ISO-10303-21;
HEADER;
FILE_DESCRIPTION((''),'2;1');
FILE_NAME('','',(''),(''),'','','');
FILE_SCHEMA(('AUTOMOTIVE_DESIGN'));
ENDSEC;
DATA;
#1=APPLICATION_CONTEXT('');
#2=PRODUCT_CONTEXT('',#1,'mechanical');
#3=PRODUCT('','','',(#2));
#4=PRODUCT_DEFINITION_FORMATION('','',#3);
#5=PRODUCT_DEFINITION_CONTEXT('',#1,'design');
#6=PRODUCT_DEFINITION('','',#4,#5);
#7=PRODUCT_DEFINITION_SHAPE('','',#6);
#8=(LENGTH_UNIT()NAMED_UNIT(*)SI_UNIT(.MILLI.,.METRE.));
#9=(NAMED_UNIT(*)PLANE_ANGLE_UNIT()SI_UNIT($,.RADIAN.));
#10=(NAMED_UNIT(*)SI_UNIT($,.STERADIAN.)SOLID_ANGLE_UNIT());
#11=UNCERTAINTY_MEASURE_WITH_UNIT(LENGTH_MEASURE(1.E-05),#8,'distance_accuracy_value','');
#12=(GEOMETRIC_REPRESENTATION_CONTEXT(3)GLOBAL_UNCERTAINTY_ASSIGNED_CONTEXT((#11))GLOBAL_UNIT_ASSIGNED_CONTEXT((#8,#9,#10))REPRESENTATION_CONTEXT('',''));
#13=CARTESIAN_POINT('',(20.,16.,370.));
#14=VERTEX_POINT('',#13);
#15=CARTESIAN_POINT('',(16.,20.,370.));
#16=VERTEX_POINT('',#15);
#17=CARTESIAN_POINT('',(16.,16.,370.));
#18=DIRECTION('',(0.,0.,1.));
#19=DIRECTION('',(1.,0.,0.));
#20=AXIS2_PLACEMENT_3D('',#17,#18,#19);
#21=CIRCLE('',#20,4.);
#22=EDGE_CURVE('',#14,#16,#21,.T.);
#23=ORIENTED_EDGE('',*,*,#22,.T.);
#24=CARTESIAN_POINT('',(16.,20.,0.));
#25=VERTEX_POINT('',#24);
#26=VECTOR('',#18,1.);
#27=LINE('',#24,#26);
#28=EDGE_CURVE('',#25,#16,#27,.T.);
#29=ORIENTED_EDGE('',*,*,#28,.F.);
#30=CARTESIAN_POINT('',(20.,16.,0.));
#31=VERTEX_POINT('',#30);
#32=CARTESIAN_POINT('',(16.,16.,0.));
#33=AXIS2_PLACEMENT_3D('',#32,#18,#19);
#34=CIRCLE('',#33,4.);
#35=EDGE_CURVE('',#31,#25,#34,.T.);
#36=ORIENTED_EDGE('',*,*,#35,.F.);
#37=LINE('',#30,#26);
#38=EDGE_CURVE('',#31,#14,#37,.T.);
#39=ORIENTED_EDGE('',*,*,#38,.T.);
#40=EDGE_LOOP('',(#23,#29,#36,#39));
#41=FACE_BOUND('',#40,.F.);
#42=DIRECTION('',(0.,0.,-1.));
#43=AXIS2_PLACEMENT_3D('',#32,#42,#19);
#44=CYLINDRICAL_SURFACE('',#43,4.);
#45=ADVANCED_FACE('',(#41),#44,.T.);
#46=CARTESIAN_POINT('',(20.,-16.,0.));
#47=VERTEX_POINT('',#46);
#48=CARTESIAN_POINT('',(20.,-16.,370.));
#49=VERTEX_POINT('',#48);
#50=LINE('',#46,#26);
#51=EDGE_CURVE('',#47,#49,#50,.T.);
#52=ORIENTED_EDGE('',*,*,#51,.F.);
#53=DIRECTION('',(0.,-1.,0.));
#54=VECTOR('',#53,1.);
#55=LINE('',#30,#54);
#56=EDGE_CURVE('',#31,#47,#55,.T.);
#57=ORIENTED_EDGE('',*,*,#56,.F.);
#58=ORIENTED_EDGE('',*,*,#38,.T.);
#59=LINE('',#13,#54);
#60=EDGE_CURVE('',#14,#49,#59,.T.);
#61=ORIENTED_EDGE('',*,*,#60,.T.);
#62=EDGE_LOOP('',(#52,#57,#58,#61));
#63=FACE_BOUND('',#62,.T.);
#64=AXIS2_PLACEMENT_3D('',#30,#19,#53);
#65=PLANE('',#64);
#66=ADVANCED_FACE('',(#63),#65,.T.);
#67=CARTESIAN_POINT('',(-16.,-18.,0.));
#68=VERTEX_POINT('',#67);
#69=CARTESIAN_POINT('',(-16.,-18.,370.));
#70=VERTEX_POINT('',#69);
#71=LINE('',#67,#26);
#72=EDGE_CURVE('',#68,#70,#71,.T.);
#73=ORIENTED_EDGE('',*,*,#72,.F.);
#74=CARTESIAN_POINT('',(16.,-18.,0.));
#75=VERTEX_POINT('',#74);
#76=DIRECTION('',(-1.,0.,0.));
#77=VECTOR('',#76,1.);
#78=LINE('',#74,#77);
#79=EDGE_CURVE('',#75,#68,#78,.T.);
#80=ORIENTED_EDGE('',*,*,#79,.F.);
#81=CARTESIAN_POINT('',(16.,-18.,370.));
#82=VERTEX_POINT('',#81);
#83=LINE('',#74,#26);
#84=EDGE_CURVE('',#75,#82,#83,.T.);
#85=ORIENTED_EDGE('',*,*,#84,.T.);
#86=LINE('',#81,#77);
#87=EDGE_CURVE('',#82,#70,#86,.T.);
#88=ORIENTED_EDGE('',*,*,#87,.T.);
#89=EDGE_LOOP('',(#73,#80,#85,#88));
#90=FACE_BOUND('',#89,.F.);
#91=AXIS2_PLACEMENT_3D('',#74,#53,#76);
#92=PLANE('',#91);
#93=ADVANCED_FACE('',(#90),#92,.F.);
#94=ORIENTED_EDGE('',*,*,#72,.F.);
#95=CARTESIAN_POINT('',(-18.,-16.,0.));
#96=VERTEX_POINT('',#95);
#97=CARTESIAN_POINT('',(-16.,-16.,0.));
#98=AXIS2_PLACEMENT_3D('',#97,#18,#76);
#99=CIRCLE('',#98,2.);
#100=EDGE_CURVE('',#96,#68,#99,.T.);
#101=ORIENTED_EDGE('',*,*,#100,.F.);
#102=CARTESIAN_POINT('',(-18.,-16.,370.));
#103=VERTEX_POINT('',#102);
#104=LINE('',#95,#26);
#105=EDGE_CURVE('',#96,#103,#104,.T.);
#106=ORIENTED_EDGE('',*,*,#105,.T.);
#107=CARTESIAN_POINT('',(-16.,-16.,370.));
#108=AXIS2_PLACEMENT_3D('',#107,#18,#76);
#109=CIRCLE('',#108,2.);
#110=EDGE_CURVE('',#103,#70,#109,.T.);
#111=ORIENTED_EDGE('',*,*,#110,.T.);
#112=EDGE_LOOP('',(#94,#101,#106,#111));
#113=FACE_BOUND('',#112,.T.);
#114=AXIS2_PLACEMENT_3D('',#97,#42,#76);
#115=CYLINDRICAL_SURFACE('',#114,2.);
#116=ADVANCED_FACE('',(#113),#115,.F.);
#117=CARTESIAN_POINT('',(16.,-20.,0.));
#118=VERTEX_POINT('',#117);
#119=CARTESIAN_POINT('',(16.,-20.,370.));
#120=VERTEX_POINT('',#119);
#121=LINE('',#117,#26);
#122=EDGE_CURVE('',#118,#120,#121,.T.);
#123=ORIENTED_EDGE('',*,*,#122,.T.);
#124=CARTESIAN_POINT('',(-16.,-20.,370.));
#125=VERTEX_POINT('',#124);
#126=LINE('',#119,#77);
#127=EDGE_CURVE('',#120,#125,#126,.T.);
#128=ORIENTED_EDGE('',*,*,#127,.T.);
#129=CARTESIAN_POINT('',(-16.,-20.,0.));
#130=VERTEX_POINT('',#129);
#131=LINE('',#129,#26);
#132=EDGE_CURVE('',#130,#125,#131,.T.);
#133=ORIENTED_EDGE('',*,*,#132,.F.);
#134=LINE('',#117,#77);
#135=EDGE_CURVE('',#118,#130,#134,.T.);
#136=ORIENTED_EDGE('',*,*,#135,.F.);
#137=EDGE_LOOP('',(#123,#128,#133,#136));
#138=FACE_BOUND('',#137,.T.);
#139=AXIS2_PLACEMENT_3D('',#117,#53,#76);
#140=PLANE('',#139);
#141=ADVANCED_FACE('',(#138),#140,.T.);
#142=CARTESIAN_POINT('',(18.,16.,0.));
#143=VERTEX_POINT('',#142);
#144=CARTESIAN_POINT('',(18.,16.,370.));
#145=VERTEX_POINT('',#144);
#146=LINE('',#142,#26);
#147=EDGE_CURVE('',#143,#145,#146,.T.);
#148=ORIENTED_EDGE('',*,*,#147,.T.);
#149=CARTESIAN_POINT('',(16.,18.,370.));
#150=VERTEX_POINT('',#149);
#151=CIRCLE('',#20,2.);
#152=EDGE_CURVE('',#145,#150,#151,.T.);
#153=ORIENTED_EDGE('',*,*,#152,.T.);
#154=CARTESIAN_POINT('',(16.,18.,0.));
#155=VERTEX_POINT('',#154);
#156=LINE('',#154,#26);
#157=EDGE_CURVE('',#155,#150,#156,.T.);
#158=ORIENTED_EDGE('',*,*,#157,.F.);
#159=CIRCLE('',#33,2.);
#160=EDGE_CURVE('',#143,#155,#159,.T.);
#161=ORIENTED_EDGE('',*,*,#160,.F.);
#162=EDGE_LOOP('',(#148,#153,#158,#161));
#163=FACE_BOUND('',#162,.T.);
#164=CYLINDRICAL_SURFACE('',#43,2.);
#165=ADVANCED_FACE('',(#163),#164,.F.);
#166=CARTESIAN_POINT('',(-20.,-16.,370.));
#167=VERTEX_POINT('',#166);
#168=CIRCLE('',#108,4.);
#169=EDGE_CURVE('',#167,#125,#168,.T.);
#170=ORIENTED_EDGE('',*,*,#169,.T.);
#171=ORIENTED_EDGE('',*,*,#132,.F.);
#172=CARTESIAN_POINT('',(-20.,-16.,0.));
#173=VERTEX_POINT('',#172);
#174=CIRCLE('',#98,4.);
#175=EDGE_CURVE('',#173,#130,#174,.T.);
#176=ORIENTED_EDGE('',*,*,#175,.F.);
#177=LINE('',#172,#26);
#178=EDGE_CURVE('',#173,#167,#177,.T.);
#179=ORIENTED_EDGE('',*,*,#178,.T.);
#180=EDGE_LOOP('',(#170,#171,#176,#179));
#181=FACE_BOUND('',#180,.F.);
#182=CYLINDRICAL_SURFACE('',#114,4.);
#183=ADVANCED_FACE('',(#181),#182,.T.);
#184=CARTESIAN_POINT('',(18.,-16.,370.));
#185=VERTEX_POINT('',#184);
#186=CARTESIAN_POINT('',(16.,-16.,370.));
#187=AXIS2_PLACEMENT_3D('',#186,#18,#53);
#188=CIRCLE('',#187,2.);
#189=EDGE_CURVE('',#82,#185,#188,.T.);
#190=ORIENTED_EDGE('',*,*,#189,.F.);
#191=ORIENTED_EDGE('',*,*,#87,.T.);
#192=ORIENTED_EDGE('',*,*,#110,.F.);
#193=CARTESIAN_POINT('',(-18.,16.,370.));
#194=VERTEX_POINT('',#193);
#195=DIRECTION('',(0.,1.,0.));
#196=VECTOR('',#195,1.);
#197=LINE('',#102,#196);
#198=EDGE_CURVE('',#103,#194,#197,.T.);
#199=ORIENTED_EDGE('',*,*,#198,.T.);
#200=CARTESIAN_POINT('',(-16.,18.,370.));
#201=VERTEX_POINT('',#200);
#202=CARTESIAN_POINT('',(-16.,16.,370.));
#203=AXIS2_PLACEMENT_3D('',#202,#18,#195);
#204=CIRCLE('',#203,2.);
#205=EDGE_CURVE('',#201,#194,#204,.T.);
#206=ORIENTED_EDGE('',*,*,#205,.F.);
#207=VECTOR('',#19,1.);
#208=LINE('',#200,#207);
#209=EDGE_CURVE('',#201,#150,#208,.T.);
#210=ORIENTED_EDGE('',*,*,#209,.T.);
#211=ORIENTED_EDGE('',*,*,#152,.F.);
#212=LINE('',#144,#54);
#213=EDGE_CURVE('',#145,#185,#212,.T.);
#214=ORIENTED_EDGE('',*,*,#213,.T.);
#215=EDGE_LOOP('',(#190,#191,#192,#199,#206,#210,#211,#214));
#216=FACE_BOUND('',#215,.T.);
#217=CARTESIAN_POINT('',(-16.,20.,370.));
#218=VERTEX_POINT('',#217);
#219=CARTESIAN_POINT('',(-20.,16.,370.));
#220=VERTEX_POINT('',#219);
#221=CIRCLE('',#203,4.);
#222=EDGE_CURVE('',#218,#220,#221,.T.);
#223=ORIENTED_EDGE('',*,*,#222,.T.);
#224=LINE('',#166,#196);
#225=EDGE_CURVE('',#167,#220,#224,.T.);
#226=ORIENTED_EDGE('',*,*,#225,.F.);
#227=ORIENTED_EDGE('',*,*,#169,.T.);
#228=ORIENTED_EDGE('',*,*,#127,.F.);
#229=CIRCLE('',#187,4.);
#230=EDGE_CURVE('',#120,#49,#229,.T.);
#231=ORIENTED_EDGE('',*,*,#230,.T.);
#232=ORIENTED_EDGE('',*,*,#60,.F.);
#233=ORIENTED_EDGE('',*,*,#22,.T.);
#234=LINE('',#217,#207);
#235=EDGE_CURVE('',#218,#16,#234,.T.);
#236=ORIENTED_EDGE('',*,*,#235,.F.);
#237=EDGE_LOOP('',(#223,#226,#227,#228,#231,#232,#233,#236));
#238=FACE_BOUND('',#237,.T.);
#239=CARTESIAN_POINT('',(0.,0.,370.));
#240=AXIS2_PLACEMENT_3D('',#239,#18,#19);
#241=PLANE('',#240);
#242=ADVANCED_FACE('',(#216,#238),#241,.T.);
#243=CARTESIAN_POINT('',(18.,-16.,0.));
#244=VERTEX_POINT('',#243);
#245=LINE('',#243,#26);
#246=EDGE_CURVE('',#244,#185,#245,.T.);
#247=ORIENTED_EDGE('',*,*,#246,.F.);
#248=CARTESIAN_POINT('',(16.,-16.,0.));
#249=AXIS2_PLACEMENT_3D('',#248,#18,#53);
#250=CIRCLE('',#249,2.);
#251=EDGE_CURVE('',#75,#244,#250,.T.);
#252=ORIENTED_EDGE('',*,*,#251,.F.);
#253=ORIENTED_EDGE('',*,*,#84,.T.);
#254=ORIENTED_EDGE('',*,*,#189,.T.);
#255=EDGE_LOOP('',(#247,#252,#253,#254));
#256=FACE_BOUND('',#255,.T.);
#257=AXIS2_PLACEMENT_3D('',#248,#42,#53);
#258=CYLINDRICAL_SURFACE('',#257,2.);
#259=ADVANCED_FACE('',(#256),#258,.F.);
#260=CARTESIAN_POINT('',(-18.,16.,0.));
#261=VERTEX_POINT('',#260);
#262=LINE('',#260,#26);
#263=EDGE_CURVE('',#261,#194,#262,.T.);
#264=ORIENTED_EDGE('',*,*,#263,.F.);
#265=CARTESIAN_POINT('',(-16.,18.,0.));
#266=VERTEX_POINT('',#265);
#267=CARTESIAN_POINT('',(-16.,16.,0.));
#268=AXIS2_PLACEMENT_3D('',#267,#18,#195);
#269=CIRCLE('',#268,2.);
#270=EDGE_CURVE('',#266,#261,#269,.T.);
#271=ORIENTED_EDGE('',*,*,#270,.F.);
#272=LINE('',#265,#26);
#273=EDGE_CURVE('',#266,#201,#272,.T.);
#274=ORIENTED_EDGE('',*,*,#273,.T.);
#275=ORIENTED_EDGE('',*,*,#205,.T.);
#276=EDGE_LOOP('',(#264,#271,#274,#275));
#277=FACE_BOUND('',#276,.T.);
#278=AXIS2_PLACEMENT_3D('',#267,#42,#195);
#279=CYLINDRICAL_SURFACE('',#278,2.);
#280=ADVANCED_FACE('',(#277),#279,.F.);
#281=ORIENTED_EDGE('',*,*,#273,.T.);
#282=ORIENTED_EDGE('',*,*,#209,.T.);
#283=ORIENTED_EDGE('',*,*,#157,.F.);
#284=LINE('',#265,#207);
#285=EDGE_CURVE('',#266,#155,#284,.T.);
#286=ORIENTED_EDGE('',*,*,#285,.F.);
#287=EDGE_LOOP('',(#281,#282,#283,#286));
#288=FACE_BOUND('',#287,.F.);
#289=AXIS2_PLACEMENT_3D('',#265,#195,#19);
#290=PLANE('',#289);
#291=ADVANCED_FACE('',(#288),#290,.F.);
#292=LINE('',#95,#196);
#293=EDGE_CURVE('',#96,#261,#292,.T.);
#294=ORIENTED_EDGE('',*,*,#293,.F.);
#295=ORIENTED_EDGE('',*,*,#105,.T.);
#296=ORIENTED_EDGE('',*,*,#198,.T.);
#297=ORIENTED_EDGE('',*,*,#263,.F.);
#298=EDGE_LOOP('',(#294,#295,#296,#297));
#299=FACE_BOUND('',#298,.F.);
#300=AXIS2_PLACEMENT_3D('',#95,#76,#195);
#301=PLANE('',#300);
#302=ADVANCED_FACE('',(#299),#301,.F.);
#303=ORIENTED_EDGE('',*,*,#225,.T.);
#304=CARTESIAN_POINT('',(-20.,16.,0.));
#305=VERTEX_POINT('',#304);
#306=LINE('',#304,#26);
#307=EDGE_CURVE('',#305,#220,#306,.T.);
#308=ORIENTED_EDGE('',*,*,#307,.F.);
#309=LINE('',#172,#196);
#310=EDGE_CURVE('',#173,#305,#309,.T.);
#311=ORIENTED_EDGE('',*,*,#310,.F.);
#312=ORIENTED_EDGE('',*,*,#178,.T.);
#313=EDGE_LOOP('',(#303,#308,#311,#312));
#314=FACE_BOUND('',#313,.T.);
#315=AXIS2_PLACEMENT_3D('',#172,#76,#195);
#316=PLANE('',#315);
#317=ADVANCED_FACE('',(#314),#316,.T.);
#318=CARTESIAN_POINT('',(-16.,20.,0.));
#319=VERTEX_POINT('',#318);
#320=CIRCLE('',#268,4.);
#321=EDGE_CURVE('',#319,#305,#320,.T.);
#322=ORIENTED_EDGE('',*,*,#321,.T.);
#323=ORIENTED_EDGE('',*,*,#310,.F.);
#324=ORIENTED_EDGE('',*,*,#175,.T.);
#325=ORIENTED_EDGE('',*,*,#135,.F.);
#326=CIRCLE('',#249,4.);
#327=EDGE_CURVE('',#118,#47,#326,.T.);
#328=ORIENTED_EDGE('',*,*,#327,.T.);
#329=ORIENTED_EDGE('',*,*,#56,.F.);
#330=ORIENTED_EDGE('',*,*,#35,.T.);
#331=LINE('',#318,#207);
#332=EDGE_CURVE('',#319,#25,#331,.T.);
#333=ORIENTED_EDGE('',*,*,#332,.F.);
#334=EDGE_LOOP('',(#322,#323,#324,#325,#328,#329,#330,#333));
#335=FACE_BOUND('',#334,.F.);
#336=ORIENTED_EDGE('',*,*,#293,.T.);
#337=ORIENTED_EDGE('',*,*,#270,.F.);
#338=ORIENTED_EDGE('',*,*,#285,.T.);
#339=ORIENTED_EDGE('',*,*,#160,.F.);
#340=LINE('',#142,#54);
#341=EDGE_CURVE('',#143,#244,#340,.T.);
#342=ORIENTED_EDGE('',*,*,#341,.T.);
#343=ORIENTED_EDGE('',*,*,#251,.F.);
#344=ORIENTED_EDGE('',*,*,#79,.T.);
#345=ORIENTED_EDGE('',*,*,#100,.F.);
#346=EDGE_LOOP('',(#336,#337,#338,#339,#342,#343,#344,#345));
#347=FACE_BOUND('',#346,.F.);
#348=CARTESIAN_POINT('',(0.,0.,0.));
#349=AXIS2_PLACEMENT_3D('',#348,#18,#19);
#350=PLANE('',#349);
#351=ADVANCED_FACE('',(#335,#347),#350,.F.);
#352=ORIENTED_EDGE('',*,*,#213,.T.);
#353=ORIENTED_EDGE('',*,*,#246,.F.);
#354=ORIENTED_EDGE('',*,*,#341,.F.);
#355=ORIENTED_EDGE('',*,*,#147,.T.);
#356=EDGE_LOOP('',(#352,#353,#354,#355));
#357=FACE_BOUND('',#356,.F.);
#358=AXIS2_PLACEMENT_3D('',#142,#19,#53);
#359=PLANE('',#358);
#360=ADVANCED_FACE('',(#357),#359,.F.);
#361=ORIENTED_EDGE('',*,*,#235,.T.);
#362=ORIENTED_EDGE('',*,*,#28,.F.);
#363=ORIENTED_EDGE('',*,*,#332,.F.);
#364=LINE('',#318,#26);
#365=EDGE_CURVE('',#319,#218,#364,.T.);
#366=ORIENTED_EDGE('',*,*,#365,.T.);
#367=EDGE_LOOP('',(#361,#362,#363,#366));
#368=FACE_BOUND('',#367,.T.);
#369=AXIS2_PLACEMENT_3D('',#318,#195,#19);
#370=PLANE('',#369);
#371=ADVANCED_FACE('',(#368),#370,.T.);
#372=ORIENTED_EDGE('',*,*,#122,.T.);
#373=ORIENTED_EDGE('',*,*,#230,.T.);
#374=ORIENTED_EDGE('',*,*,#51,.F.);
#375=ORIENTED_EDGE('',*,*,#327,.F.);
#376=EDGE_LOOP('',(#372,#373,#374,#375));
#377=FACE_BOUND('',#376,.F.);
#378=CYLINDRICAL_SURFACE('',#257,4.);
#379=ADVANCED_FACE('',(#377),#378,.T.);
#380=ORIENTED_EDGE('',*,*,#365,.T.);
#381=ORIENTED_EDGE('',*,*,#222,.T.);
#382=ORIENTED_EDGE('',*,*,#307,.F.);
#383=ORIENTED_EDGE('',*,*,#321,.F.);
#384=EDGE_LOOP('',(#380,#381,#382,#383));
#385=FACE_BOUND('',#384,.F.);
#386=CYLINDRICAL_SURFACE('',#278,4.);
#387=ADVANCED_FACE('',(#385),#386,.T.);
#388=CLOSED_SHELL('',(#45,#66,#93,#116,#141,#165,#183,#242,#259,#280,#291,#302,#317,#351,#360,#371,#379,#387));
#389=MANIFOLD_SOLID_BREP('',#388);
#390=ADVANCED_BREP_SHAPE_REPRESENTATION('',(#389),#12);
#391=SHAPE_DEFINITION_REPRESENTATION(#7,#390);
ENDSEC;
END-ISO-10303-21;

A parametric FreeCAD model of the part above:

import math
import FreeCAD as App
import Part
import Sketcher
from FreeCAD import Vector
Q = App.Units.Quantity

doc = App.newDocument("Part")
body = doc.addObject("PartDesign::Body", "Body")

sketch1 = body.newObject("Sketcher::SketchObject", "Sketch")
sketch1.AttachmentSupport = (doc.getObject("XY_Plane"), [""])
sketch1.MapMode = "FlatFace"
sketch1.addGeometry([
    Part.LineSegment(Vector(-20, 16, 0), Vector(-20, -16, 0)),
    Part.ArcOfCircle(Part.Circle(Vector(-16, -16, 0), Vector(0, 0, 1), 4), math.radians(180), math.radians(270)),
    Part.LineSegment(Vector(-16, -20, 0), Vector(16, -20, 0)),
    Part.ArcOfCircle(Part.Circle(Vector(16, -16, 0), Vector(0, 0, 1), 4), math.radians(-90), math.radians(0)),
    Part.LineSegment(Vector(20, -16, 0), Vector(20, 16, 0)),
    Part.ArcOfCircle(Part.Circle(Vector(16, 16, 0), Vector(0, 0, 1), 4), math.radians(0), math.radians(90)),
    Part.LineSegment(Vector(16, 20, 0), Vector(-16, 20, 0)),
    Part.ArcOfCircle(Part.Circle(Vector(-16, 16, 0), Vector(0, 0, 1), 4), math.radians(90), math.radians(180)),
    Part.ArcOfCircle(Part.Circle(Vector(-16, 16, 0), Vector(0, 0, 1), 2), math.radians(90), math.radians(180)),
    Part.LineSegment(Vector(-16, 18, 0), Vector(16, 18, 0)),
    Part.ArcOfCircle(Part.Circle(Vector(16, 16, 0), Vector(0, 0, 1), 2), math.radians(0), math.radians(90)),
    Part.LineSegment(Vector(18, 16, 0), Vector(18, -16, 0)),
    Part.ArcOfCircle(Part.Circle(Vector(16, -16, 0), Vector(0, 0, 1), 2), math.radians(-90), math.radians(0)),
    Part.LineSegment(Vector(16, -18, 0), Vector(-16, -18, 0)),
    Part.ArcOfCircle(Part.Circle(Vector(-16, -16, 0), Vector(0, 0, 1), 2), math.radians(180), math.radians(270)),
    Part.LineSegment(Vector(-18, -16, 0), Vector(-18, 16, 0)),
], False)
sketch1.addConstraint([
    Sketcher.Constraint("Tangent", 0, 2, 1, 1),
    Sketcher.Constraint("Tangent", 1, 2, 2, 1),
    Sketcher.Constraint("Tangent", 2, 2, 3, 1),
    Sketcher.Constraint("Tangent", 3, 2, 4, 1),
    Sketcher.Constraint("Tangent", 4, 2, 5, 1),
    Sketcher.Constraint("Tangent", 5, 2, 6, 1),
    Sketcher.Constraint("Tangent", 6, 2, 7, 1),
    Sketcher.Constraint("Tangent", 7, 2, 0, 1),
    Sketcher.Constraint("Tangent", 8, 1, 9, 1),
    Sketcher.Constraint("Tangent", 9, 2, 10, 2),
    Sketcher.Constraint("Tangent", 10, 1, 11, 1),
    Sketcher.Constraint("Tangent", 11, 2, 12, 2),
    Sketcher.Constraint("Tangent", 12, 1, 13, 1),
    Sketcher.Constraint("Tangent", 13, 2, 14, 2),
    Sketcher.Constraint("Tangent", 14, 1, 15, 1),
    Sketcher.Constraint("Tangent", 15, 2, 8, 2),
    Sketcher.Constraint("Vertical", 0),
    Sketcher.Constraint("Horizontal", 2),
    Sketcher.Constraint("Vertical", 4),
    Sketcher.Constraint("Horizontal", 6),
    Sketcher.Constraint("Horizontal", 9),
    Sketcher.Constraint("Vertical", 11),
    Sketcher.Constraint("Horizontal", 13),
    Sketcher.Constraint("Vertical", 15),
    Sketcher.Constraint("Coincident", 8, 3, 7, 3),
    Sketcher.Constraint("Coincident", 10, 3, 5, 3),
    Sketcher.Constraint("Coincident", 12, 3, 3, 3),
    Sketcher.Constraint("Equal", 1, 3),
    Sketcher.Constraint("Equal", 3, 5),
    Sketcher.Constraint("Equal", 5, 7),
    Sketcher.Constraint("Equal", 12, 14),
    Sketcher.Constraint("Symmetric", 1, 3, 5, 3, -1, 1),
    Sketcher.Constraint("Equal", 13, 0),
    Sketcher.Constraint("Radius", 1, Q("4 mm")),
    Sketcher.Constraint("Radius", 8, Q("2 mm")),
    Sketcher.Constraint("DistanceX", 0, 2, -1, 1, Q("20 mm")),
])
pad1 = body.newObject("PartDesign::Pad", "Pad")
pad1.Profile = sketch1
pad1.Length = 370

doc.recompute()
